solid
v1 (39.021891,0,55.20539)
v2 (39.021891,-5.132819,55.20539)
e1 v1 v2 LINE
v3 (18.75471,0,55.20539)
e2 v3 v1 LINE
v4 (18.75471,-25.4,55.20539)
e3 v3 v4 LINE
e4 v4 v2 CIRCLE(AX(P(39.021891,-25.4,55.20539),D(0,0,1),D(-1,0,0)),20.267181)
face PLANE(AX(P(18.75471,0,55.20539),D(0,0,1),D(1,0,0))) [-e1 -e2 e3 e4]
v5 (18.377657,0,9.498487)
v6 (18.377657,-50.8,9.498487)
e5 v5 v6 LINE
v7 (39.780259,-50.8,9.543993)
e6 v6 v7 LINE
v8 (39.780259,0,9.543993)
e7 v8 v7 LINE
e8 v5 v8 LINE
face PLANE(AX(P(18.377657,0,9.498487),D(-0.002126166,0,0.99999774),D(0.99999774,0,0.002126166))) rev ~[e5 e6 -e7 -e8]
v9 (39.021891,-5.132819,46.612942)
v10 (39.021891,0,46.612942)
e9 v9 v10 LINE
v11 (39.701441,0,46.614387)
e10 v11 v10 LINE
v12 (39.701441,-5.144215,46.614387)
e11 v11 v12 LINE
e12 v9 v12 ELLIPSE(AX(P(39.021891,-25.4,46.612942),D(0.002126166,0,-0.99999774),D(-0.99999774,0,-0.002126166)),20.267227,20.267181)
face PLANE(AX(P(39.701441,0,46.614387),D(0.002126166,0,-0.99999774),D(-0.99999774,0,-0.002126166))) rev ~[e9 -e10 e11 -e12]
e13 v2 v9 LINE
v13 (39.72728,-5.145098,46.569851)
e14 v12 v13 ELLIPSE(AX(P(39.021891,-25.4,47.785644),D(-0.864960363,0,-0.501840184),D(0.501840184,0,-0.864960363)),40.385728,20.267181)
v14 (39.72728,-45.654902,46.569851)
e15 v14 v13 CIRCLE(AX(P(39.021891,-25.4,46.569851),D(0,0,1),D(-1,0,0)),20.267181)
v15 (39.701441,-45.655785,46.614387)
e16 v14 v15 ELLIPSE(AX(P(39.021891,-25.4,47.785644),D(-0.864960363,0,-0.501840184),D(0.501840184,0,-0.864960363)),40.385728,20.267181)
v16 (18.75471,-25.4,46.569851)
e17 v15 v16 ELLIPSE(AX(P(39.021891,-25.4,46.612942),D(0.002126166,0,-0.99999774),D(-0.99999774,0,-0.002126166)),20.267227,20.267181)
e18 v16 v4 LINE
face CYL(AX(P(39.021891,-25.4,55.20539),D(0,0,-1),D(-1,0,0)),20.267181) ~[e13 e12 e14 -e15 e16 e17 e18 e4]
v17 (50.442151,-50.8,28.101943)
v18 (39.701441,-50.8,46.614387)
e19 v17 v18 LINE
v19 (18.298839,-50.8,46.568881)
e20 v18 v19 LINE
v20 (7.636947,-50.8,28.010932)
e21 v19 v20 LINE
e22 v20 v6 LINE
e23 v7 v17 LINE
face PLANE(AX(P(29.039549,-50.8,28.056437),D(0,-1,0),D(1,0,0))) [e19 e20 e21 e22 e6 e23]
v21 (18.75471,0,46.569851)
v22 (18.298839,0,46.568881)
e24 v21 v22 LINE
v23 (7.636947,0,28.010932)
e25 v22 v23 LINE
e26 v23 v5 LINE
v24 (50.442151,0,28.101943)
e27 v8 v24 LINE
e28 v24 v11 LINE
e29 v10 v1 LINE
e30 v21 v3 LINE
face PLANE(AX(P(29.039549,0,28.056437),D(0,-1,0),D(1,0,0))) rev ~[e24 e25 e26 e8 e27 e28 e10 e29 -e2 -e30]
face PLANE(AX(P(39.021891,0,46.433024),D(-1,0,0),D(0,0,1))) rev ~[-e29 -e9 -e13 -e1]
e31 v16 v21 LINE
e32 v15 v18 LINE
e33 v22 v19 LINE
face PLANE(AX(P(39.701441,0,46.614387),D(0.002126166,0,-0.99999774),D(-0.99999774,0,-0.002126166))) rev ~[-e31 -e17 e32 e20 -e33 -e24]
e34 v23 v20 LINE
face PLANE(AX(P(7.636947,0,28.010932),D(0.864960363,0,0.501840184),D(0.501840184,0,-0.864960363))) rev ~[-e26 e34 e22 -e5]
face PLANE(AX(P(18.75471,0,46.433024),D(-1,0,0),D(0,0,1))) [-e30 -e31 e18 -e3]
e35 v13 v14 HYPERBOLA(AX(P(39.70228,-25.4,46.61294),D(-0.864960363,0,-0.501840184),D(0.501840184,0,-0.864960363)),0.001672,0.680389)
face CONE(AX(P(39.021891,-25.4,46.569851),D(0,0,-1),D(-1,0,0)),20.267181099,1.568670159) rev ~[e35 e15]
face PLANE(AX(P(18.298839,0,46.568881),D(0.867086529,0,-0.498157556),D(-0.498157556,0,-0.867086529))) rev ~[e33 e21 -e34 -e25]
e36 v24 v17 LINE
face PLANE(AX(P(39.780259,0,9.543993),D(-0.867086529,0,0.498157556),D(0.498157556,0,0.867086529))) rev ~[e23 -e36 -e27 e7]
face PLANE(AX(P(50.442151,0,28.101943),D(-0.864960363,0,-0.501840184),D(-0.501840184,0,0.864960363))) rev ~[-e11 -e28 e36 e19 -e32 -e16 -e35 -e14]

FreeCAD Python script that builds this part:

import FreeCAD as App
import Part
import Sketcher
from FreeCAD import Vector
Q = App.Units.Quantity

doc = App.newDocument("Part")
body = doc.addObject("PartDesign::Body", "Body")

sketch1 = body.newObject("Sketcher::SketchObject", "Sketch")
sketch1.AttachmentSupport = (doc.getObject("XZ_Plane"), [""])
sketch1.MapMode = "FlatFace"
sketch1.addGeometry([
    Part.LineSegment(Vector(50, 28, 0), Vector(40, 47, 0)),
    Part.LineSegment(Vector(40, 47, 0), Vector(18, 47, 0)),
    Part.LineSegment(Vector(18, 47, 0), Vector(8, 28, 0)),
    Part.LineSegment(Vector(8, 28, 0), Vector(18, 9, 0)),
    Part.LineSegment(Vector(18, 9, 0), Vector(40, 10, 0)),
    Part.LineSegment(Vector(40, 10, 0), Vector(50, 28, 0)),
], False)
sketch1.addConstraint([
    Sketcher.Constraint("Coincident", 0, 2, 1, 1),
    Sketcher.Constraint("Coincident", 1, 2, 2, 1),
    Sketcher.Constraint("Coincident", 2, 2, 3, 1),
    Sketcher.Constraint("Coincident", 3, 2, 4, 1),
    Sketcher.Constraint("Coincident", 4, 2, 5, 1),
    Sketcher.Constraint("Coincident", 5, 2, 0, 1),
    Sketcher.Constraint("Parallel", 0, 3),
    Sketcher.Constraint("Parallel", 1, 4),
    Sketcher.Constraint("Parallel", 2, 5),
    Sketcher.Constraint("Equal", 0, 1),
    Sketcher.Constraint("Equal", 1, 2),
    Sketcher.Constraint("Equal", 2, 3),
    Sketcher.Constraint("DistanceX", 1, 2, 0, 2, Q("21.402602 mm")),
    Sketcher.Constraint("DistanceY", 3, 2, 0, 2, Q("37.115899 mm")),
    Sketcher.Constraint("DistanceX", -1, 1, 0, 2, Q("39.701441 mm")),
    Sketcher.Constraint("DistanceY", -1, 1, 1, 2, Q("46.568881 mm")),
    Sketcher.Constraint("DistanceY", -1, 1, 2, 2, Q("28.010932 mm")),
    Sketcher.Constraint("DistanceX", -1, 1, 4, 2, Q("39.780259 mm")),
])
pad1 = body.newObject("PartDesign::Pad", "Pad")
pad1.Profile = sketch1
pad1.Length = Q("2 in")

sketch2 = body.newObject("Sketcher::SketchObject", "Sketch001")
sketch2.AttachmentSupport = (doc.getObject("XZ_Plane"), [""])
sketch2.MapMode = "FlatFace"
sketch2.addGeometry([
    Part.LineSegment(Vector(19, 55, 0), Vector(19, 46, 0)),
    Part.LineSegment(Vector(19, 46, 0), Vector(39, 46, 0)),
    Part.LineSegment(Vector(39, 46, 0), Vector(39, 55, 0)),
    Part.LineSegment(Vector(39, 55, 0), Vector(19, 55, 0)),
], False)
sketch2.addConstraint([
    Sketcher.Constraint("Coincident", 0, 2, 1, 1),
    Sketcher.Constraint("Coincident", 1, 2, 2, 1),
    Sketcher.Constraint("Coincident", 2, 2, 3, 1),
    Sketcher.Constraint("Coincident", 3, 2, 0, 1),
    Sketcher.Constraint("Vertical", 0),
    Sketcher.Constraint("Horizontal", 1),
    Sketcher.Constraint("Vertical", 2),
    Sketcher.Constraint("Horizontal", 3),
    Sketcher.Constraint("DistanceX", 1, 1, 1, 2, Q("20.267181 mm")),
    Sketcher.Constraint("DistanceY", 0, 2, 0, 1, Q("8.772366 mm")),
    Sketcher.Constraint("DistanceX", -1, 1, 0, 2, Q("18.75471 mm")),
    Sketcher.Constraint("DistanceY", -1, 1, 2, 2, Q("55.20539 mm")),
])
pad2 = body.newObject("PartDesign::Pad", "Pad001")
pad2.Profile = sketch2
pad2.Length = Q("1 in")

sketch3 = body.newObject("Sketcher::SketchObject", "Sketch002")
sketch3.AttachmentSupport = (doc.getObject("XZ_Plane"), [""])
sketch3.MapMode = "FlatFace"
sketch3.AttachmentOffset = App.Placement(Vector(0, 0, 1 * 25.4), App.Rotation())
sketch3.addGeometry([
    Part.LineSegment(Vector(39, 55, 0), Vector(19, 55, 0)),
    Part.LineSegment(Vector(19, 55, 0), Vector(19, 47, 0)),
    Part.LineSegment(Vector(19, 47, 0), Vector(39, 47, 0)),
    Part.LineSegment(Vector(39, 47, 0), Vector(39, 55, 0)),
], False)
sketch3.addGeometry(Part.LineSegment(Vector(39, 47, 0), Vector(39, 55, 0)), True)
sketch3.addConstraint([
    Sketcher.Constraint("Coincident", 0, 2, 1, 1),
    Sketcher.Constraint("Coincident", 1, 2, 2, 1),
    Sketcher.Constraint("Coincident", 2, 2, 3, 1),
    Sketcher.Constraint("Coincident", 3, 2, 0, 1),
    Sketcher.Constraint("Horizontal", 0),
    Sketcher.Constraint("Vertical", 1),
    Sketcher.Constraint("Vertical", 3),
    Sketcher.Constraint("Vertical", 4),
    Sketcher.Constraint("Coincident", 4, 2, 3, 2),
    Sketcher.Constraint("Horizontal", 1, 2, 4, 1),
    Sketcher.Constraint("DistanceX", 0, 2, 0, 1, Q("20.267181 mm")),
    Sketcher.Constraint("DistanceY", 1, 2, 1, 1, Q("8.635539 mm")),
    Sketcher.Constraint("DistanceY", 3, 1, 3, 2, Q("8.592448 mm")),
    Sketcher.Constraint("DistanceX", -1, 1, 0, 2, Q("18.75471 mm")),
    Sketcher.Constraint("DistanceY", -1, 1, 0, 2, Q("55.20539 mm")),
])
revolution = body.newObject("PartDesign::Revolution", "Revolution")
revolution.Profile = sketch3
revolution.ReferenceAxis = (sketch3, ["Axis0"])
revolution.Angle = 360

doc.recompute()
